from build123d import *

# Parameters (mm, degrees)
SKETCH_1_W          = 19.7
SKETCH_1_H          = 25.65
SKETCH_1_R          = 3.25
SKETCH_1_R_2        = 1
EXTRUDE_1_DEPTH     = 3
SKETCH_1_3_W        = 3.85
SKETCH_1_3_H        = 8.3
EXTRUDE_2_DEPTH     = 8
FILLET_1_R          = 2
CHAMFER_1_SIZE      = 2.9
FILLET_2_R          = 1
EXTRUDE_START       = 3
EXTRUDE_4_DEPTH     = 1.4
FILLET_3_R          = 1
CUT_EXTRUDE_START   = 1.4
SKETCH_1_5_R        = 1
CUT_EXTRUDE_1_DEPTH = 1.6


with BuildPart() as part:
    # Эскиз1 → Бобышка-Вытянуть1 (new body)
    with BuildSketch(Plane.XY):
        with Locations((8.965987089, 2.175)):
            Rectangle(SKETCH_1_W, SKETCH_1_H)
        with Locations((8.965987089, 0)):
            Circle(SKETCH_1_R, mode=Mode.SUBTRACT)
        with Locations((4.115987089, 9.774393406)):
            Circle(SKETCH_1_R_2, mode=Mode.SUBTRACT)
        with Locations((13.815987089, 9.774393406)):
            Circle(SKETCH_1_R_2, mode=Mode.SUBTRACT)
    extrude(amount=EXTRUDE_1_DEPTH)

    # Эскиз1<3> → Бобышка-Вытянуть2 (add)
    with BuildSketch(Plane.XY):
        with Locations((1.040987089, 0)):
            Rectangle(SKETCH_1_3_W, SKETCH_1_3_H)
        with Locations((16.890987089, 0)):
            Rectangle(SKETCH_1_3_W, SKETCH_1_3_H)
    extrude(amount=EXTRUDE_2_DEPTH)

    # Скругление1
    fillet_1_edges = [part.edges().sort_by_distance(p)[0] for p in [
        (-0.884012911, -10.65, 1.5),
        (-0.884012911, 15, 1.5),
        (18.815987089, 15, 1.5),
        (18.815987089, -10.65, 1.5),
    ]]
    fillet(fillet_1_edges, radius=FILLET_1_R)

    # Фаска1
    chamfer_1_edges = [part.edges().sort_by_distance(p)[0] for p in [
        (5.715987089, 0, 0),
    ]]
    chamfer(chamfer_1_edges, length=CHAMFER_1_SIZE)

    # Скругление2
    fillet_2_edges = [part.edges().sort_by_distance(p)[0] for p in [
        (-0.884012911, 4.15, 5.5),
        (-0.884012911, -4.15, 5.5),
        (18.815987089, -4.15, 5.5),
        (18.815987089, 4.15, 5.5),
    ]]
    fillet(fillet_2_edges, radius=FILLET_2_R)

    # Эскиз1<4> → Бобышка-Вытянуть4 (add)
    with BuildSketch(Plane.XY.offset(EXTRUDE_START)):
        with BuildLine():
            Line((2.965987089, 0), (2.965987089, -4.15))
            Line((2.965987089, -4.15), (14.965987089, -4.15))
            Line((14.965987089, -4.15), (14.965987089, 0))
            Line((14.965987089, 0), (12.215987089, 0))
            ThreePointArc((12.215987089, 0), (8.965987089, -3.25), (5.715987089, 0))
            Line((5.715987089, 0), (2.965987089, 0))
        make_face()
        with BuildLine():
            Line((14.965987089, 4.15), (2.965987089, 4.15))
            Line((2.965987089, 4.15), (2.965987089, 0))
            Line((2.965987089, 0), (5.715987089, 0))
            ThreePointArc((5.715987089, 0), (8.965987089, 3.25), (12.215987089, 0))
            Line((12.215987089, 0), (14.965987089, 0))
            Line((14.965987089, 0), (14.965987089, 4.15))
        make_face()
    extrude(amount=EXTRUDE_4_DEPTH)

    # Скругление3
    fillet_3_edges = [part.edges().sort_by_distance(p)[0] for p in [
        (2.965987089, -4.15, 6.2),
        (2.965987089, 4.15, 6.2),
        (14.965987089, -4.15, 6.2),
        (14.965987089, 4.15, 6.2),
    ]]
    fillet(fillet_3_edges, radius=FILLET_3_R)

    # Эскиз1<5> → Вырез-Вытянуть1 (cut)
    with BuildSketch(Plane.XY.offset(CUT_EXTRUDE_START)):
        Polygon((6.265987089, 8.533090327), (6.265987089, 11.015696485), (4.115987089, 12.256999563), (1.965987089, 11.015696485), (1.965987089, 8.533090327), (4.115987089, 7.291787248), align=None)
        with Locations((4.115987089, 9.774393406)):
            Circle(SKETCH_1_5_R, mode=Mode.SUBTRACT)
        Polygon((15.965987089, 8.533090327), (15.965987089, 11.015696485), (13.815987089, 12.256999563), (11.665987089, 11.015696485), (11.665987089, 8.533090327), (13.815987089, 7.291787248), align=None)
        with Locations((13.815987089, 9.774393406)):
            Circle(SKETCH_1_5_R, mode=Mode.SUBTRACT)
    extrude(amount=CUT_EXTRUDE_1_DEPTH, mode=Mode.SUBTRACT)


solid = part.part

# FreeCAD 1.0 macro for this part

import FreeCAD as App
import Part
import Sketcher

V = App.Vector
Q = App.Units.Quantity


def edges_at(feature, points):
    """Names of the edges that pass closest to the given points."""
    edges = feature.Shape.Edges
    near = lambda p: min(range(len(edges)), key=lambda i: edges[i].distToShape(Part.Vertex(*p))[0])
    return sorted({f"Edge{near(p) + 1}" for p in points})


def add_polygon(sketch, points):
    """Adds a closed chain of lines whose ends are joined by coincident constraints."""
    first, n = sketch.GeometryCount, len(points)
    for a, b in zip(points, points[1:] + points[:1]):
        sketch.addGeometry(Part.LineSegment(App.Vector(*a, 0), App.Vector(*b, 0)), False)
    for i in range(n):
        sketch.addConstraint(Sketcher.Constraint("Coincident", first + i, 2, first + (i + 1) % n, 1))

doc = App.newDocument("Part")
body = doc.addObject("PartDesign::Body", "Body")

sketch1 = body.newObject("Sketcher::SketchObject", "Sketch")
sketch1.AttachmentSupport = (doc.getObject("XY_Plane"), [""])
sketch1.MapMode = "FlatFace"
add_polygon(sketch1, [(-0.9, 15), (-0.9, -10.7), (18.8, -10.7), (18.8, 15)])
sketch1.addGeometry(Part.Circle(V(9, 0, 0), V(0, 0, 1), 3.2), False)
sketch1.addGeometry(Part.Circle(V(4.1, 9.8, 0), V(0, 0, 1), 1), False)
sketch1.addGeometry(Part.Circle(V(13.8, 9.8, 0), V(0, 0, 1), 1), False)
sketch1.addConstraint([
    Sketcher.Constraint("Vertical", 0),
    Sketcher.Constraint("Horizontal", 1),
    Sketcher.Constraint("Vertical", 2),
    Sketcher.Constraint("Horizontal", 3),
    Sketcher.Constraint("Equal", 5, 6),
    Sketcher.Constraint("PointOnObject", 4, 3, -1),
    Sketcher.Constraint("Horizontal", 5, 3, 6, 3),
    Sketcher.Constraint("Diameter", 5, 2.0),
    Sketcher.Constraint("Diameter", 4, 6.5),
    Sketcher.Constraint("DistanceX", 1, 1, 1, 2, 19.7),
    Sketcher.Constraint("DistanceY", -1, 1, 2, 2, 15.0),
    Sketcher.Constraint("DistanceX", 0, 2, 5, 3, 5.0),
    Sketcher.Constraint("DistanceX", 6, 3, 1, 2, 5.0),
    Sketcher.Constraint("DistanceY", 0, 2, 0, 1, 25.65),
    Sketcher.Constraint("DistanceX", 5, 3, 4, 3, 4.85),
    Sketcher.Constraint("DistanceX", -1, 1, 4, 3, 8.965987),
    Sketcher.Constraint("DistanceY", -1, 1, 5, 3, 9.774393),
])
pad1 = body.newObject("PartDesign::Pad", "Pad")
pad1.Profile = sketch1
pad1.Length = 3

sketch2 = body.newObject("Sketcher::SketchObject", "Sketch001")
sketch2.AttachmentSupport = (doc.getObject("XY_Plane"), [""])
sketch2.MapMode = "FlatFace"
add_polygon(sketch2, [(-0.9, 4.2), (-0.9, -4.2), (3, -4.2), (3, 4.2)])
add_polygon(sketch2, [(15, 4.2), (15, -4.2), (18.8, -4.2), (18.8, 4.2)])
sketch2.addConstraint([
    Sketcher.Constraint("Vertical", 0),
    Sketcher.Constraint("Horizontal", 1),
    Sketcher.Constraint("Vertical", 2),
    Sketcher.Constraint("Horizontal", 3),
    Sketcher.Constraint("Vertical", 4),
    Sketcher.Constraint("Horizontal", 5),
    Sketcher.Constraint("Vertical", 6),
    Sketcher.Constraint("Horizontal", 7),
    Sketcher.Constraint("Horizontal", 1, 2, 4, 2),
    Sketcher.Constraint("Horizontal", 3, 2, 6, 2),
    Sketcher.Constraint("Equal", 3, 5),
    Sketcher.Constraint("DistanceY", 0, 2, 0, 1, 8.3),
    Sketcher.Constraint("DistanceX", 1, 2, 4, 2, 12.0),
    Sketcher.Constraint("DistanceX", 1, 1, 1, 2, 3.85),
    Sketcher.Constraint("DistanceY", 0, 2, -1, 1, 4.15),
    Sketcher.Constraint("DistanceX", 0, 2, -1, 1, 0.884013),
])
pad2 = body.newObject("PartDesign::Pad", "Pad001")
pad2.Profile = sketch2
pad2.Length = 8
doc.recompute()

fillet = body.newObject("PartDesign::Fillet", "Fillet")
fillet.Base = (pad2, edges_at(pad2, [
    (-0.884, -10.65, 1.5),
    (-0.884, 15, 1.5),
    (18.816, 15, 1.5),
    (18.816, -10.65, 1.5),
]))
fillet.Radius = 2
doc.recompute()

chamfer = body.newObject("PartDesign::Chamfer", "Chamfer")
chamfer.Base = (fillet, edges_at(fillet, [(5.716, 0, 0)]))
chamfer.Size = 2.9
doc.recompute()

fillet2 = body.newObject("PartDesign::Fillet", "Fillet001")
fillet2.Base = (chamfer, edges_at(chamfer, [
    (-0.884, 4.15, 5.5),
    (-0.884, -4.15, 5.5),
    (18.816, -4.15, 5.5),
    (18.816, 4.15, 5.5),
]))
fillet2.Radius = 1

sketch3 = body.newObject("Sketcher::SketchObject", "Sketch002")
sketch3.AttachmentSupport = (doc.getObject("XY_Plane"), [""])
sketch3.MapMode = "FlatFace"
sketch3.AttachmentOffset = App.Placement(V(0, 0, 3), App.Rotation())
add_polygon(sketch3, [(3, -4.2), (15, -4.2), (15, 4.2), (3, 4.2)])
sketch3.addGeometry(Part.Circle(V(9, 0, 0), V(0, 0, 1), 3.2), False)
sketch3.addConstraint([
    Sketcher.Constraint("Horizontal", 0),
    Sketcher.Constraint("Vertical", 1),
    Sketcher.Constraint("Horizontal", 2),
    Sketcher.Constraint("Vertical", 3),
    Sketcher.Constraint("PointOnObject", 4, 3, -1),
    Sketcher.Constraint("Diameter", 4, 6.5),
    Sketcher.Constraint("DistanceX", 0, 1, 0, 2, 12.0),
    Sketcher.Constraint("DistanceY", 1, 1, 1, 2, 8.3),
    Sketcher.Constraint("DistanceX", 4, 3, 0, 2, 6.0),
    Sketcher.Constraint("DistanceY", 0, 2, -1, 1, 4.15),
    Sketcher.Constraint("DistanceX", -1, 1, 4, 3, 8.965987),
])
pad3 = body.newObject("PartDesign::Pad", "Pad002")
pad3.Profile = sketch3
pad3.Length = 1.4
doc.recompute()

fillet3 = body.newObject("PartDesign::Fillet", "Fillet002")
fillet3.Base = (pad3, edges_at(pad3, [
    (2.966, -4.15, 6.2),
    (2.966, 4.15, 6.2),
    (14.966, -4.15, 6.2),
    (14.966, 4.15, 6.2),
]))
fillet3.Radius = 1

sketch4 = body.newObject("Sketcher::SketchObject", "Sketch003")
sketch4.AttachmentSupport = (doc.getObject("XY_Plane"), [""])
sketch4.MapMode = "FlatFace"
sketch4.AttachmentOffset = App.Placement(V(0, 0, 1.4), App.Rotation())
add_polygon(sketch4, [(6.3, 8.5), (6.3, 11), (4.1, 12.3), (2, 11), (2, 8.5), (4.1, 7.3)])
sketch4.addGeometry(Part.Circle(V(4.1, 9.8, 0), V(0, 0, 1), 1), False)
add_polygon(sketch4, [(16, 8.5), (16, 11), (13.8, 12.3), (11.7, 11), (11.7, 8.5), (13.8, 7.3)])
sketch4.addGeometry(Part.Circle(V(13.8, 9.8, 0), V(0, 0, 1), 1), False)
sketch4.addConstraint([
    Sketcher.Constraint("Vertical", 0),
    Sketcher.Constraint("Vertical", 3),
    Sketcher.Constraint("Vertical", 7),
    Sketcher.Constraint("Vertical", 10),
    Sketcher.Constraint("Equal", 6, 13),
    Sketcher.Constraint("Parallel", 1, 4),
    Sketcher.Constraint("Parallel", 2, 5),
    Sketcher.Constraint("Parallel", 4, 8),
    Sketcher.Constraint("Parallel", 5, 9),
    Sketcher.Constraint("Parallel", 8, 11),
    Sketcher.Constraint("Parallel", 9, 12),
    Sketcher.Constraint("Horizontal", 6, 3, 13, 3),
    Sketcher.Constraint("Horizontal", 0, 2, 2, 2),
    Sketcher.Constraint("Horizontal", 3, 2, 5, 2),
    Sketcher.Constraint("Horizontal", 2, 2, 7, 2),
    Sketcher.Constraint("Horizontal", 1, 2, 8, 2),
    Sketcher.Constraint("Horizontal", 7, 2, 9, 2),
    Sketcher.Constraint("Horizontal", 5, 2, 10, 2),
    Sketcher.Constraint("Horizontal", 4, 2, 11, 2),
    Sketcher.Constraint("Vertical", 6, 3, 1, 2),
    Sketcher.Constraint("Vertical", 1, 2, 4, 2),
    Sketcher.Constraint("Vertical", 13, 3, 8, 2),
    Sketcher.Constraint("Diameter", 6, 2.0),
    Sketcher.Constraint("Angle", 1, Q("150 deg")),
    Sketcher.Constraint("DistanceX", 6, 3, 13, 3, 9.7),
    Sketcher.Constraint("DistanceX", 2, 2, 0, 2, 4.3),
    Sketcher.Constraint("DistanceY", -1, 1, 1, 2, 12.257),
    Sketcher.Constraint("DistanceY", 0, 1, 0, 2, 2.482606),
    Sketcher.Constraint("DistanceX", -1, 1, 6, 3, 4.115987),
    Sketcher.Constraint("DistanceY", -1, 1, 6, 3, 9.774393),
])
pocket1 = body.newObject("PartDesign::Pocket", "Pocket")
pocket1.Profile = sketch4
pocket1.Length = 1.6
pocket1.Reversed = True

doc.recompute()
